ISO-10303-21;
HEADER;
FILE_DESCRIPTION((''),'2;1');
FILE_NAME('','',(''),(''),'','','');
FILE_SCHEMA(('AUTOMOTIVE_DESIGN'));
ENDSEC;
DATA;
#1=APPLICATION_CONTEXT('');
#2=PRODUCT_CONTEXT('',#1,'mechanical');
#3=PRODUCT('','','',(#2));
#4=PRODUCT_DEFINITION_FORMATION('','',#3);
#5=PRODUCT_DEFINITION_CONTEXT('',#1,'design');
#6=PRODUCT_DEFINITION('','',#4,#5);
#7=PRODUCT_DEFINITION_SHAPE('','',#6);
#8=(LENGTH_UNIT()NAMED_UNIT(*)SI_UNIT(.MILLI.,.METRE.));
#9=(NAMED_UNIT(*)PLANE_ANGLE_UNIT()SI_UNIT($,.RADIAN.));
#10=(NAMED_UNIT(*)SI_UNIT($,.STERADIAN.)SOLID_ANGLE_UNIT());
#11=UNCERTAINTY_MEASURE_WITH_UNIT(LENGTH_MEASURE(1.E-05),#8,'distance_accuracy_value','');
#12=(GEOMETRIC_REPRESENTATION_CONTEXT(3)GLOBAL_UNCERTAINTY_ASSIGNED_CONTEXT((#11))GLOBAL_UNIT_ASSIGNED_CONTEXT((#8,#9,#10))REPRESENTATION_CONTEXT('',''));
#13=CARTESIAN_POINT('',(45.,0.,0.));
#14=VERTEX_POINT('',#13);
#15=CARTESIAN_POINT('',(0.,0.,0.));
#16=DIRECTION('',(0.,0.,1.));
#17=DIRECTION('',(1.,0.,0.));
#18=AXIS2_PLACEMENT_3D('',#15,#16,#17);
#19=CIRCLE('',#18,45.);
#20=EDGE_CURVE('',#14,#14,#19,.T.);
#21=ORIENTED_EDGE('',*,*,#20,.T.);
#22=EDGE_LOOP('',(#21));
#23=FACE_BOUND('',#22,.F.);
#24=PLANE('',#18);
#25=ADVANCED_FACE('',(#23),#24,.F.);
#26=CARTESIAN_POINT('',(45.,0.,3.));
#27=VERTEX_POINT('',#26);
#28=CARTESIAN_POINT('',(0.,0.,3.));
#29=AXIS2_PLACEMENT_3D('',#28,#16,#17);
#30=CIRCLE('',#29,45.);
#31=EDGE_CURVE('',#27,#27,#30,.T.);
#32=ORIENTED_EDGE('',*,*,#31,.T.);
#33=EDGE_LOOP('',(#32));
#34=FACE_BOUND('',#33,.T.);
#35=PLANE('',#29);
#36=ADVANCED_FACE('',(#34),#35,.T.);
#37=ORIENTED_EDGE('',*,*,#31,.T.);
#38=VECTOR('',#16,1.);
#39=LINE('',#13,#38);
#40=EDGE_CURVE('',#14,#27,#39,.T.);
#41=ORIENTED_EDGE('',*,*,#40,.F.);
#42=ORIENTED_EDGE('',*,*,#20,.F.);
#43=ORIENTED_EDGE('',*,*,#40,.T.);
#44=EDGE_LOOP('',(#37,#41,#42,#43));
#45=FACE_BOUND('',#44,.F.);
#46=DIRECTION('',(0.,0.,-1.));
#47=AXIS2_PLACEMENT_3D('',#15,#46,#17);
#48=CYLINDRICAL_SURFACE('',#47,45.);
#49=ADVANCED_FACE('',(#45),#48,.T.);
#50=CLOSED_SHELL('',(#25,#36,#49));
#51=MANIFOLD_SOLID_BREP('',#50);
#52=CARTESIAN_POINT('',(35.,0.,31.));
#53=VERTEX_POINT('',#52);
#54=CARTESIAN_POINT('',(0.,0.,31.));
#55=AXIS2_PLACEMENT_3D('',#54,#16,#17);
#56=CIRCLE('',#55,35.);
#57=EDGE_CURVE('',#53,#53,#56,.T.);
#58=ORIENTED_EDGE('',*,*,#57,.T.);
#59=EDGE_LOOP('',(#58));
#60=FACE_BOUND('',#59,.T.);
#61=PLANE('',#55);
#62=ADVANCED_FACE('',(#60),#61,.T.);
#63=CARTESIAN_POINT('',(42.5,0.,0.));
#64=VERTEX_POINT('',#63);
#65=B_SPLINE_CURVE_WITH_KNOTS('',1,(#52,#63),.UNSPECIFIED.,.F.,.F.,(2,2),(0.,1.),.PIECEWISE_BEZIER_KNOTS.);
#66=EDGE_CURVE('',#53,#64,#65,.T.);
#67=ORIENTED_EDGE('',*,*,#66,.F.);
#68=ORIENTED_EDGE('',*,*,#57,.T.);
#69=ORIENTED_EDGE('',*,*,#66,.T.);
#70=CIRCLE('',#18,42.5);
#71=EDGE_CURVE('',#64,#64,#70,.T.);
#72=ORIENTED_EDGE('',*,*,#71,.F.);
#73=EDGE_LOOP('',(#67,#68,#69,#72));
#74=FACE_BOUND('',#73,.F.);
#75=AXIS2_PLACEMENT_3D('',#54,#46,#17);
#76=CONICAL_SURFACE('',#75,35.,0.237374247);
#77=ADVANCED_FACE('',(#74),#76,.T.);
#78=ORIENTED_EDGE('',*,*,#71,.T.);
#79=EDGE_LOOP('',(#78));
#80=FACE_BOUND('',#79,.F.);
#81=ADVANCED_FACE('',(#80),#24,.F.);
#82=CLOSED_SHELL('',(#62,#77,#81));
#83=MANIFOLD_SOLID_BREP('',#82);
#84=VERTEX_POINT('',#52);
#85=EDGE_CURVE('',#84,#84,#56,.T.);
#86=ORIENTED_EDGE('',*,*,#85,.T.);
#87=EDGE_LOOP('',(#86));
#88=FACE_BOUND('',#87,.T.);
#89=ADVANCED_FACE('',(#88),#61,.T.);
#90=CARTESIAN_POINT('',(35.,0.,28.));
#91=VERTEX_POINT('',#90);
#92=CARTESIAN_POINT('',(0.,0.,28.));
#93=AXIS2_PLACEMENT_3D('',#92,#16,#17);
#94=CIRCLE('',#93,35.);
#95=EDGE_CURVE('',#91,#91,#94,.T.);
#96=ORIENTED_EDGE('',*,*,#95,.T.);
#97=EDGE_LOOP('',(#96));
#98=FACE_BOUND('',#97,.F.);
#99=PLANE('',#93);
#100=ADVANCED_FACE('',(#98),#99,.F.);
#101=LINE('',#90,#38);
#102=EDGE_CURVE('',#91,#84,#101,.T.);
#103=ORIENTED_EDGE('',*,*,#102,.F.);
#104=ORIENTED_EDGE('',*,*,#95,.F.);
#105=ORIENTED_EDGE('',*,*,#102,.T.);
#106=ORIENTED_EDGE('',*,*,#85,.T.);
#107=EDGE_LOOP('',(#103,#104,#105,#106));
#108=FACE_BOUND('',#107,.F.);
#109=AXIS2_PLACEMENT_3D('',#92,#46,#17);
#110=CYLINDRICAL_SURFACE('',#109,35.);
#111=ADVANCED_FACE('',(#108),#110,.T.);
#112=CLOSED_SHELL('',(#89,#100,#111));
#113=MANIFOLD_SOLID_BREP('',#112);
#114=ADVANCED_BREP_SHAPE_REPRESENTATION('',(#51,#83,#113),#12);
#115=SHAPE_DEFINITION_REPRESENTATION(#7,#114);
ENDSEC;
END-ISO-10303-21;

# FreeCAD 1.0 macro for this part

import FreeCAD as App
import Part
import Sketcher

doc = App.newDocument("Part")
body = doc.addObject("PartDesign::Body", "Body")

# Sketch on XY plane
sketch1 = body.newObject("Sketcher::SketchObject", "Sketch")
sketch1.AttachmentSupport = (doc.getObject("XY_Plane"), [""])
sketch1.MapMode = "FlatFace"
sketch1.addGeometry(Part.Circle(App.Vector(0, 0, 0), App.Vector(0, 0, 1), 45), False)
sketch1.addConstraint([
    Sketcher.Constraint("Coincident", 0, 3, -1, 1),
    Sketcher.Constraint("Diameter", 0, 90.0),
])
pad1 = body.newObject("PartDesign::Pad", "Pad")
pad1.Profile = sketch1
pad1.Length = 3
body2 = doc.addObject("PartDesign::Body", "Body001")

# Sketch on XY plane
sketch2 = body2.newObject("Sketcher::SketchObject", "Sketch001")
sketch2.AttachmentSupport = (doc.getObject("XY_Plane001"), [""])
sketch2.MapMode = "FlatFace"
sketch2.AttachmentOffset = App.Placement(App.Vector(0, 0, 28), App.Rotation())
sketch2.addGeometry(Part.Circle(App.Vector(0, 0, 0), App.Vector(0, 0, 1), 35), False)
sketch2.addConstraint([
    Sketcher.Constraint("Coincident", 0, 3, -1, 1),
    Sketcher.Constraint("Diameter", 0, 70.0),
])
pad2 = body2.newObject("PartDesign::Pad", "Pad001")
pad2.Profile = sketch2
pad2.Length = 3
body3 = doc.addObject("PartDesign::Body", "Body002")

# Sketch on XY plane
sketch3 = body3.newObject("Sketcher::SketchObject", "Sketch002")
sketch3.AttachmentSupport = (doc.getObject("XY_Plane002"), [""])
sketch3.MapMode = "FlatFace"
sketch3.AttachmentOffset = App.Placement(App.Vector(0, 0, 31), App.Rotation())
sketch3.addGeometry(Part.Circle(App.Vector(0, 0, 0), App.Vector(0, 0, 1), 35), False)
sketch3.addConstraint([
    Sketcher.Constraint("Coincident", 0, 3, -1, 1),
    Sketcher.Constraint("Diameter", 0, 70.0),
])

# Sketch on XY plane
sketch4 = body3.newObject("Sketcher::SketchObject", "Sketch003")
sketch4.AttachmentSupport = (doc.getObject("XY_Plane002"), [""])
sketch4.MapMode = "FlatFace"
sketch4.addGeometry(Part.Circle(App.Vector(0, 0, 0), App.Vector(0, 0, 1), 42.5), False)
sketch4.addConstraint([
    Sketcher.Constraint("Coincident", 0, 3, -1, 1),
    Sketcher.Constraint("Diameter", 0, 85.0),
])

additiveloft = body3.newObject("PartDesign::AdditiveLoft", "AdditiveLoft")
additiveloft.Profile = sketch3
additiveloft.Sections = [sketch4]

doc.recompute()
